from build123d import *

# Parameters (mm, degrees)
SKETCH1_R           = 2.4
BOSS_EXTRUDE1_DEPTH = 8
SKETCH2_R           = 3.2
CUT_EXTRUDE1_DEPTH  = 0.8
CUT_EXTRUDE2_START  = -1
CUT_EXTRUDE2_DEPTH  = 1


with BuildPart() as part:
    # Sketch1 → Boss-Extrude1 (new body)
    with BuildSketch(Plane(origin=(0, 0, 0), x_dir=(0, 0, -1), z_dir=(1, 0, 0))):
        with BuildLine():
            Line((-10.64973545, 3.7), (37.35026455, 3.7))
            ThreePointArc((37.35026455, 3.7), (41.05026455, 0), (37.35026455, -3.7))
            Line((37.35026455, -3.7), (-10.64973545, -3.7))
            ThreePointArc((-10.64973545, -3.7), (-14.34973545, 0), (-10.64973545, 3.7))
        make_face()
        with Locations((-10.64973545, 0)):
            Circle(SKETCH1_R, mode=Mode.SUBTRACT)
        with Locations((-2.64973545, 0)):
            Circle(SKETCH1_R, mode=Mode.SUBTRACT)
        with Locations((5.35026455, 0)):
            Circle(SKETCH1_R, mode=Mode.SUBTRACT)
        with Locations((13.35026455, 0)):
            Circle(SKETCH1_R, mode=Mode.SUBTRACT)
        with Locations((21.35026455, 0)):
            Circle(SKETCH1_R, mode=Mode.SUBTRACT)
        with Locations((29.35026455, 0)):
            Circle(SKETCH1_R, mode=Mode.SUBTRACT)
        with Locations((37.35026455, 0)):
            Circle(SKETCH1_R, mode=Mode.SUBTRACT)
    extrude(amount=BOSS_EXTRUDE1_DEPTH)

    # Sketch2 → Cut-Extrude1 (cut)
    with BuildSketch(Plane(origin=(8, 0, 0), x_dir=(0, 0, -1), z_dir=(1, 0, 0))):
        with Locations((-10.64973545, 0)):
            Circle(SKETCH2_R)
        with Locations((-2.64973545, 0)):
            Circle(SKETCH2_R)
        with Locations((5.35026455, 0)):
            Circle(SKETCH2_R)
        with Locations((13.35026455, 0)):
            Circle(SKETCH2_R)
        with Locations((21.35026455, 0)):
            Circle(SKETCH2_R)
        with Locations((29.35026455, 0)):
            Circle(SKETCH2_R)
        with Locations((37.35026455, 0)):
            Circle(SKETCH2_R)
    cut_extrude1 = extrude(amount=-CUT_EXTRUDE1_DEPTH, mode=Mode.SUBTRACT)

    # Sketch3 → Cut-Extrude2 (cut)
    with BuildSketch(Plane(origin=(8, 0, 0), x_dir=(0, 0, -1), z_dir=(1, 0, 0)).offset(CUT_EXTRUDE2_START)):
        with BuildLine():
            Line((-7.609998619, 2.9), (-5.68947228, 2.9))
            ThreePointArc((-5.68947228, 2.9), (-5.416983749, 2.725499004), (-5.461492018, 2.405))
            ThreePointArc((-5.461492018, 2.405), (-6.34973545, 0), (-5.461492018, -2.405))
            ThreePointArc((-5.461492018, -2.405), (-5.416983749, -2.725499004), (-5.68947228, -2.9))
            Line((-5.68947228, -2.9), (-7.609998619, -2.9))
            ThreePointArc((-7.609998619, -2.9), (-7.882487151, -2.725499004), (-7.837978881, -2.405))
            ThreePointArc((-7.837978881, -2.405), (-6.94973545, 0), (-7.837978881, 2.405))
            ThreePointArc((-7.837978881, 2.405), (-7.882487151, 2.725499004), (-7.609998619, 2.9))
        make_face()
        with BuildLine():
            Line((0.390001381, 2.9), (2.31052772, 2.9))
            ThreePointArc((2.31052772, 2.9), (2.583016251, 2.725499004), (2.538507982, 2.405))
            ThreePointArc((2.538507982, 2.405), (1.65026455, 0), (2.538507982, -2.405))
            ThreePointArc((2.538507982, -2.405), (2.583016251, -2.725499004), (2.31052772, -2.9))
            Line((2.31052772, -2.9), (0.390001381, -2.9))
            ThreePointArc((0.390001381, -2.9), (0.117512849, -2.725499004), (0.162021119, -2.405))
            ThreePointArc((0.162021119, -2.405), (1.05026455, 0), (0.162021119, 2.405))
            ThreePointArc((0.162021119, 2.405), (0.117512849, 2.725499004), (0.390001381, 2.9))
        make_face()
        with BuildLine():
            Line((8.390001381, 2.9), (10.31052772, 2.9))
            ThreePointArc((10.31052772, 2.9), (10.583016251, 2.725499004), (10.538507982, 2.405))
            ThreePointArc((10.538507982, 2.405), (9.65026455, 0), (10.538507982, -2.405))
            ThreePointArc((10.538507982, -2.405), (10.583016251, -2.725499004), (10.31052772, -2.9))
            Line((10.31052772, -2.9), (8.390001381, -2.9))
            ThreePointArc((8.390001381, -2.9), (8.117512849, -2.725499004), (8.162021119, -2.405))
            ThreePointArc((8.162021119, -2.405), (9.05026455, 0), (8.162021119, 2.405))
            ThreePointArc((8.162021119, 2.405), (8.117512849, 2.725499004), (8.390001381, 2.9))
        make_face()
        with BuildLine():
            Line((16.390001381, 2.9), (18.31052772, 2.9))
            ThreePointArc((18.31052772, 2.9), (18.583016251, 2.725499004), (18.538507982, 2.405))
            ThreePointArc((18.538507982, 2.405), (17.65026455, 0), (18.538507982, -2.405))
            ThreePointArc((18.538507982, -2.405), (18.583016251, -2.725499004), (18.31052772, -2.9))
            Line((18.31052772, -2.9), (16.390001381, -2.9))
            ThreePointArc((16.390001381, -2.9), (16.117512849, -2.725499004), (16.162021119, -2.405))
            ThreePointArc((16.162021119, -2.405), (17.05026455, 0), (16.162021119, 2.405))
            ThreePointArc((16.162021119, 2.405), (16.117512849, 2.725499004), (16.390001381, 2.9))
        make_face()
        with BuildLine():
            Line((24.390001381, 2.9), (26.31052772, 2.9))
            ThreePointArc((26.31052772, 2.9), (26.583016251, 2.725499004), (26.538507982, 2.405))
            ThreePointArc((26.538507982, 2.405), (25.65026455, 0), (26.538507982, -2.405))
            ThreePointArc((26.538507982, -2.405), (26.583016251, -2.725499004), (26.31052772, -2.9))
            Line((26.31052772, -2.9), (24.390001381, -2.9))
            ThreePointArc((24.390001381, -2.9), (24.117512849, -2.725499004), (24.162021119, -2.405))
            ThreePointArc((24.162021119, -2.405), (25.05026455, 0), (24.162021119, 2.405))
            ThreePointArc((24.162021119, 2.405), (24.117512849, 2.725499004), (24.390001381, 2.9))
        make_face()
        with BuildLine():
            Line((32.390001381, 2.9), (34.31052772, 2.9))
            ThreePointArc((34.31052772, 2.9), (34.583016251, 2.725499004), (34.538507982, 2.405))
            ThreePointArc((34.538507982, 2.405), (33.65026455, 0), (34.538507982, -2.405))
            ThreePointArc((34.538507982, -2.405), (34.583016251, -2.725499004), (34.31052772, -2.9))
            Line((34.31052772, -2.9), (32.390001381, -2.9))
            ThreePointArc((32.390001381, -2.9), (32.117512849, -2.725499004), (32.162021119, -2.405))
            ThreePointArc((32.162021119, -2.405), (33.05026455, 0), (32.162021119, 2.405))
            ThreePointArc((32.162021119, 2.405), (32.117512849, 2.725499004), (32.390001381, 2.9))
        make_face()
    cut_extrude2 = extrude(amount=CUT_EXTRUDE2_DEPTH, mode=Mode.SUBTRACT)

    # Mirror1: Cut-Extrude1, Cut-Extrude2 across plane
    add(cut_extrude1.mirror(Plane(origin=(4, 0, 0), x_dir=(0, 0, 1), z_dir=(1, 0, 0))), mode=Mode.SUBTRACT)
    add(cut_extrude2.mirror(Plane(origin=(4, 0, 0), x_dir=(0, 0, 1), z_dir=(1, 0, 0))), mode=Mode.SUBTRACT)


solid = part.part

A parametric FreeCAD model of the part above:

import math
import FreeCAD as App
import Part
import Sketcher
Q = App.Units.Quantity

doc = App.newDocument("Part")
body = doc.addObject("PartDesign::Body", "Body")

sketch1 = doc.addObject("Sketcher::SketchObject", "Sketch")
body.addObject(sketch1)
sketch1.AttachmentSupport = (doc.YZ_Plane, [""])
sketch1.MapMode = "FlatFace"
sketch1.addGeometry([
    Part.LineSegment(App.Vector(3.7, -37.4, 0), App.Vector(3.7, 10.6, 0)),
    Part.ArcOfCircle(Part.Circle(App.Vector(0, 10.6, 0), App.Vector(0, 0, 1), 3.7), math.radians(0), math.radians(180)),
    Part.LineSegment(App.Vector(-3.7, 10.6, 0), App.Vector(-3.7, -37.4, 0)),
    Part.ArcOfCircle(Part.Circle(App.Vector(0, -37.4, 0), App.Vector(0, 0, 1), 3.7), math.radians(180), math.radians(360)),
    Part.Circle(App.Vector(0, -37.4, 0), App.Vector(0, 0, 1), 2.4),
    Part.Circle(App.Vector(0, -29.4, 0), App.Vector(0, 0, 1), 2.4),
    Part.Circle(App.Vector(0, -21.4, 0), App.Vector(0, 0, 1), 2.4),
    Part.Circle(App.Vector(0, -13.4, 0), App.Vector(0, 0, 1), 2.4),
    Part.Circle(App.Vector(0, -5.4, 0), App.Vector(0, 0, 1), 2.4),
    Part.Circle(App.Vector(0, 2.6, 0), App.Vector(0, 0, 1), 2.4),
    Part.Circle(App.Vector(0, 10.6, 0), App.Vector(0, 0, 1), 2.4),
], False)
sketch1.addConstraint([
    Sketcher.Constraint("Tangent", 0, 2, 1, 1),
    Sketcher.Constraint("Tangent", 1, 2, 2, 1),
    Sketcher.Constraint("Tangent", 2, 2, 3, 1),
    Sketcher.Constraint("Tangent", 3, 2, 0, 1),
    Sketcher.Constraint("Vertical", 0),
    Sketcher.Constraint("Vertical", 2),
    Sketcher.Constraint("Coincident", 4, 3, 3, 3),
    Sketcher.Constraint("Coincident", 10, 3, 1, 3),
    Sketcher.Constraint("Equal", 4, 5),
    Sketcher.Constraint("Equal", 5, 6),
    Sketcher.Constraint("Equal", 6, 7),
    Sketcher.Constraint("Equal", 7, 8),
    Sketcher.Constraint("Equal", 8, 9),
    Sketcher.Constraint("Equal", 9, 10),
    Sketcher.Constraint("PointOnObject", 1, 3, -2),
    Sketcher.Constraint("PointOnObject", 5, 3, -2),
    Sketcher.Constraint("PointOnObject", 6, 3, -2),
    Sketcher.Constraint("PointOnObject", 7, 3, -2),
    Sketcher.Constraint("PointOnObject", 8, 3, -2),
    Sketcher.Constraint("PointOnObject", 9, 3, -2),
    Sketcher.Constraint("Diameter", 4, Q("4.8 mm")),
    Sketcher.Constraint("Radius", 1, Q("3.7 mm")),
    Sketcher.Constraint("DistanceY", 0, 1, 0, 2, Q("48 mm")),
    Sketcher.Constraint("DistanceY", 3, 3, 5, 3, Q("8 mm")),
    Sketcher.Constraint("DistanceY", 5, 3, 6, 3, Q("8 mm")),
    Sketcher.Constraint("DistanceY", 6, 3, 7, 3, Q("8 mm")),
    Sketcher.Constraint("DistanceY", 7, 3, 8, 3, Q("8 mm")),
    Sketcher.Constraint("DistanceY", 9, 3, 1, 3, Q("8 mm")),
    Sketcher.Constraint("DistanceY", -1, 1, 1, 3, Q("10.649735 mm")),
])
pad1 = doc.addObject("PartDesign::Pad", "Pad")
body.addObject(pad1)
pad1.Profile = sketch1
pad1.Length = 8

sketch2 = doc.addObject("Sketcher::SketchObject", "Sketch001")
body.addObject(sketch2)
sketch2.AttachmentSupport = (doc.YZ_Plane, [""])
sketch2.MapMode = "FlatFace"
sketch2.AttachmentOffset = App.Placement(App.Vector(0, 0, 8), App.Rotation())
sketch2.addGeometry([
    Part.Circle(App.Vector(0, 10.6, 0), App.Vector(0, 0, 1), 3.2),
    Part.Circle(App.Vector(0, 2.6, 0), App.Vector(0, 0, 1), 3.2),
    Part.Circle(App.Vector(0, -5.4, 0), App.Vector(0, 0, 1), 3.2),
    Part.Circle(App.Vector(0, -13.4, 0), App.Vector(0, 0, 1), 3.2),
    Part.Circle(App.Vector(0, -21.4, 0), App.Vector(0, 0, 1), 3.2),
    Part.Circle(App.Vector(0, -29.4, 0), App.Vector(0, 0, 1), 3.2),
    Part.Circle(App.Vector(0, -37.4, 0), App.Vector(0, 0, 1), 3.2),
], False)
sketch2.addConstraint([
    Sketcher.Constraint("Equal", 0, 1),
    Sketcher.Constraint("Equal", 1, 2),
    Sketcher.Constraint("Equal", 2, 3),
    Sketcher.Constraint("Equal", 3, 4),
    Sketcher.Constraint("Equal", 4, 5),
    Sketcher.Constraint("Equal", 5, 6),
    Sketcher.Constraint("PointOnObject", 0, 3, -2),
    Sketcher.Constraint("PointOnObject", 1, 3, -2),
    Sketcher.Constraint("PointOnObject", 2, 3, -2),
    Sketcher.Constraint("PointOnObject", 3, 3, -2),
    Sketcher.Constraint("PointOnObject", 4, 3, -2),
    Sketcher.Constraint("PointOnObject", 5, 3, -2),
    Sketcher.Constraint("PointOnObject", 6, 3, -2),
    Sketcher.Constraint("Diameter", 0, Q("6.4 mm")),
    Sketcher.Constraint("DistanceY", 1, 3, 0, 3, Q("8 mm")),
    Sketcher.Constraint("DistanceY", 2, 3, 1, 3, Q("8 mm")),
    Sketcher.Constraint("DistanceY", 3, 3, 2, 3, Q("8 mm")),
    Sketcher.Constraint("DistanceY", 4, 3, 3, 3, Q("8 mm")),
    Sketcher.Constraint("DistanceY", 5, 3, 4, 3, Q("8 mm")),
    Sketcher.Constraint("DistanceY", 6, 3, 5, 3, Q("8 mm")),
    Sketcher.Constraint("DistanceY", -1, 1, 0, 3, Q("10.649735 mm")),
])
pocket1 = doc.addObject("PartDesign::Pocket", "Pocket")
body.addObject(pocket1)
pocket1.Profile = sketch2
pocket1.Length = 0.8

sketch3 = doc.addObject("Sketcher::SketchObject", "Sketch002")
body.addObject(sketch3)
sketch3.AttachmentSupport = (doc.YZ_Plane, [""])
sketch3.MapMode = "FlatFace"
sketch3.AttachmentOffset = App.Placement(App.Vector(0, 0, 7), App.Rotation())
sketch3.addGeometry([
    Part.LineSegment(App.Vector(2.9, 5.69, 0), App.Vector(2.9, 7.61, 0)),
    Part.ArcOfCircle(Part.Circle(App.Vector(2.6, 7.61, 0), App.Vector(0, 0, 1), 0.3), math.radians(0), math.radians(131)),
    Part.ArcOfCircle(Part.Circle(App.Vector(0, 10.65, 0), App.Vector(0, 0, 1), 3.7), math.radians(-131), math.radians(-49)),
    Part.ArcOfCircle(Part.Circle(App.Vector(-2.6, 7.61, 0), App.Vector(0, 0, 1), 0.3), math.radians(49), math.radians(180)),
    Part.LineSegment(App.Vector(-2.9, 7.61, 0), App.Vector(-2.9, 5.69, 0)),
    Part.ArcOfCircle(Part.Circle(App.Vector(-2.6, 5.69, 0), App.Vector(0, 0, 1), 0.3), math.radians(-180), math.radians(-49)),
    Part.ArcOfCircle(Part.Circle(App.Vector(0, 2.65, 0), App.Vector(0, 0, 1), 3.7), math.radians(49), math.radians(131)),
    Part.ArcOfCircle(Part.Circle(App.Vector(2.6, 5.69, 0), App.Vector(0, 0, 1), 0.3), math.radians(-131), math.radians(0)),
    Part.LineSegment(App.Vector(2.9, -2.31, 0), App.Vector(2.9, -0.39, 0)),
    Part.ArcOfCircle(Part.Circle(App.Vector(2.6, -0.39, 0), App.Vector(0, 0, 1), 0.3), math.radians(0), math.radians(131)),
    Part.ArcOfCircle(Part.Circle(App.Vector(0, 2.65, 0), App.Vector(0, 0, 1), 3.7), math.radians(-131), math.radians(-49)),
    Part.ArcOfCircle(Part.Circle(App.Vector(-2.6, -0.39, 0), App.Vector(0, 0, 1), 0.3), math.radians(49), math.radians(180)),
    Part.LineSegment(App.Vector(-2.9, -0.39, 0), App.Vector(-2.9, -2.31, 0)),
    Part.ArcOfCircle(Part.Circle(App.Vector(-2.6, -2.31, 0), App.Vector(0, 0, 1), 0.3), math.radians(-180), math.radians(-49)),
    Part.ArcOfCircle(Part.Circle(App.Vector(0, -5.35, 0), App.Vector(0, 0, 1), 3.7), math.radians(49), math.radians(131)),
    Part.ArcOfCircle(Part.Circle(App.Vector(2.6, -2.31, 0), App.Vector(0, 0, 1), 0.3), math.radians(-131), math.radians(0)),
    Part.LineSegment(App.Vector(2.9, -10.31, 0), App.Vector(2.9, -8.39, 0)),
    Part.ArcOfCircle(Part.Circle(App.Vector(2.6, -8.39, 0), App.Vector(0, 0, 1), 0.3), math.radians(0), math.radians(131)),
    Part.ArcOfCircle(Part.Circle(App.Vector(0, -5.35, 0), App.Vector(0, 0, 1), 3.7), math.radians(-131), math.radians(-49)),
    Part.ArcOfCircle(Part.Circle(App.Vector(-2.6, -8.39, 0), App.Vector(0, 0, 1), 0.3), math.radians(49), math.radians(180)),
    Part.LineSegment(App.Vector(-2.9, -8.39, 0), App.Vector(-2.9, -10.31, 0)),
    Part.ArcOfCircle(Part.Circle(App.Vector(-2.6, -10.31, 0), App.Vector(0, 0, 1), 0.3), math.radians(-180), math.radians(-49)),
    Part.ArcOfCircle(Part.Circle(App.Vector(0, -13.35, 0), App.Vector(0, 0, 1), 3.7), math.radians(49), math.radians(131)),
    Part.ArcOfCircle(Part.Circle(App.Vector(2.6, -10.31, 0), App.Vector(0, 0, 1), 0.3), math.radians(-131), math.radians(0)),
    Part.LineSegment(App.Vector(2.9, -18.31, 0), App.Vector(2.9, -16.39, 0)),
    Part.ArcOfCircle(Part.Circle(App.Vector(2.6, -16.39, 0), App.Vector(0, 0, 1), 0.3), math.radians(0), math.radians(131)),
    Part.ArcOfCircle(Part.Circle(App.Vector(0, -13.35, 0), App.Vector(0, 0, 1), 3.7), math.radians(-131), math.radians(-49)),
    Part.ArcOfCircle(Part.Circle(App.Vector(-2.6, -16.39, 0), App.Vector(0, 0, 1), 0.3), math.radians(49), math.radians(180)),
    Part.LineSegment(App.Vector(-2.9, -16.39, 0), App.Vector(-2.9, -18.31, 0)),
    Part.ArcOfCircle(Part.Circle(App.Vector(-2.6, -18.31, 0), App.Vector(0, 0, 1), 0.3), math.radians(-180), math.radians(-49)),
    Part.ArcOfCircle(Part.Circle(App.Vector(0, -21.35, 0), App.Vector(0, 0, 1), 3.7), math.radians(49), math.radians(131)),
    Part.ArcOfCircle(Part.Circle(App.Vector(2.6, -18.31, 0), App.Vector(0, 0, 1), 0.3), math.radians(-131), math.radians(0)),
    Part.LineSegment(App.Vector(2.9, -26.31, 0), App.Vector(2.9, -24.39, 0)),
    Part.ArcOfCircle(Part.Circle(App.Vector(2.6, -24.39, 0), App.Vector(0, 0, 1), 0.3), math.radians(0), math.radians(131)),
    Part.ArcOfCircle(Part.Circle(App.Vector(0, -21.35, 0), App.Vector(0, 0, 1), 3.7), math.radians(-131), math.radians(-49)),
    Part.ArcOfCircle(Part.Circle(App.Vector(-2.6, -24.39, 0), App.Vector(0, 0, 1), 0.3), math.radians(49), math.radians(180)),
    Part.LineSegment(App.Vector(-2.9, -24.39, 0), App.Vector(-2.9, -26.31, 0)),
    Part.ArcOfCircle(Part.Circle(App.Vector(-2.6, -26.31, 0), App.Vector(0, 0, 1), 0.3), math.radians(-180), math.radians(-49)),
    Part.ArcOfCircle(Part.Circle(App.Vector(0, -29.35, 0), App.Vector(0, 0, 1), 3.7), math.radians(49), math.radians(131)),
    Part.ArcOfCircle(Part.Circle(App.Vector(2.6, -26.31, 0), App.Vector(0, 0, 1), 0.3), math.radians(-131), math.radians(0)),
    Part.LineSegment(App.Vector(2.9, -34.31, 0), App.Vector(2.9, -32.39, 0)),
    Part.ArcOfCircle(Part.Circle(App.Vector(2.6, -32.39, 0), App.Vector(0, 0, 1), 0.3), math.radians(0), math.radians(131)),
    Part.ArcOfCircle(Part.Circle(App.Vector(0, -29.35, 0), App.Vector(0, 0, 1), 3.7), math.radians(-131), math.radians(-49)),
    Part.ArcOfCircle(Part.Circle(App.Vector(-2.6, -32.39, 0), App.Vector(0, 0, 1), 0.3), math.radians(49), math.radians(180)),
    Part.LineSegment(App.Vector(-2.9, -32.39, 0), App.Vector(-2.9, -34.31, 0)),
    Part.ArcOfCircle(Part.Circle(App.Vector(-2.6, -34.31, 0), App.Vector(0, 0, 1), 0.3), math.radians(-180), math.radians(-49)),
    Part.ArcOfCircle(Part.Circle(App.Vector(0, -37.35, 0), App.Vector(0, 0, 1), 3.7), math.radians(49), math.radians(131)),
    Part.ArcOfCircle(Part.Circle(App.Vector(2.6, -34.31, 0), App.Vector(0, 0, 1), 0.3), math.radians(-131), math.radians(0)),
], False)
sketch3.addConstraint([
    Sketcher.Constraint("Tangent", 0, 2, 1, 1),
    Sketcher.Constraint("Tangent", 1, 2, 2, 2),
    Sketcher.Constraint("Tangent", 2, 1, 3, 1),
    Sketcher.Constraint("Tangent", 3, 2, 4, 1),
    Sketcher.Constraint("Tangent", 4, 2, 5, 1),
    Sketcher.Constraint("Tangent", 5, 2, 6, 2),
    Sketcher.Constraint("Tangent", 6, 1, 7, 1),
    Sketcher.Constraint("Tangent", 7, 2, 0, 1),
    Sketcher.Constraint("Tangent", 8, 2, 9, 1),
    Sketcher.Constraint("Tangent", 9, 2, 10, 2),
    Sketcher.Constraint("Tangent", 10, 1, 11, 1),
    Sketcher.Constraint("Tangent", 11, 2, 12, 1),
    Sketcher.Constraint("Tangent", 12, 2, 13, 1),
    Sketcher.Constraint("Tangent", 13, 2, 14, 2),
    Sketcher.Constraint("Tangent", 14, 1, 15, 1),
    Sketcher.Constraint("Tangent", 15, 2, 8, 1),
    Sketcher.Constraint("Tangent", 16, 2, 17, 1),
    Sketcher.Constraint("Tangent", 17, 2, 18, 2),
    Sketcher.Constraint("Tangent", 18, 1, 19, 1),
    Sketcher.Constraint("Tangent", 19, 2, 20, 1),
    Sketcher.Constraint("Tangent", 20, 2, 21, 1),
    Sketcher.Constraint("Tangent", 21, 2, 22, 2),
    Sketcher.Constraint("Tangent", 22, 1, 23, 1),
    Sketcher.Constraint("Tangent", 23, 2, 16, 1),
    Sketcher.Constraint("Tangent", 24, 2, 25, 1),
    Sketcher.Constraint("Tangent", 25, 2, 26, 2),
    Sketcher.Constraint("Tangent", 26, 1, 27, 1),
    Sketcher.Constraint("Tangent", 27, 2, 28, 1),
    Sketcher.Constraint("Tangent", 28, 2, 29, 1),
    Sketcher.Constraint("Tangent", 29, 2, 30, 2),
    Sketcher.Constraint("Tangent", 30, 1, 31, 1),
    Sketcher.Constraint("Tangent", 31, 2, 24, 1),
    Sketcher.Constraint("Tangent", 32, 2, 33, 1),
    Sketcher.Constraint("Tangent", 33, 2, 34, 2),
    Sketcher.Constraint("Tangent", 34, 1, 35, 1),
    Sketcher.Constraint("Tangent", 35, 2, 36, 1),
    Sketcher.Constraint("Tangent", 36, 2, 37, 1),
    Sketcher.Constraint("Tangent", 37, 2, 38, 2),
    Sketcher.Constraint("Tangent", 38, 1, 39, 1),
    Sketcher.Constraint("Tangent", 39, 2, 32, 1),
    Sketcher.Constraint("Tangent", 40, 2, 41, 1),
    Sketcher.Constraint("Tangent", 41, 2, 42, 2),
    Sketcher.Constraint("Tangent", 42, 1, 43, 1),
    Sketcher.Constraint("Tangent", 43, 2, 44, 1),
    Sketcher.Constraint("Tangent", 44, 2, 45, 1),
    Sketcher.Constraint("Tangent", 45, 2, 46, 2),
    Sketcher.Constraint("Tangent", 46, 1, 47, 1),
    Sketcher.Constraint("Tangent", 47, 2, 40, 1),
    Sketcher.Constraint("Vertical", 0),
    Sketcher.Constraint("Vertical", 4),
    Sketcher.Constraint("Vertical", 8),
    Sketcher.Constraint("Vertical", 12),
    Sketcher.Constraint("Vertical", 16),
    Sketcher.Constraint("Vertical", 20),
    Sketcher.Constraint("Vertical", 24),
    Sketcher.Constraint("Vertical", 28),
    Sketcher.Constraint("Vertical", 32),
    Sketcher.Constraint("Vertical", 36),
    Sketcher.Constraint("Vertical", 40),
    Sketcher.Constraint("Vertical", 44),
    Sketcher.Constraint("Coincident", 10, 3, 6, 3),
    Sketcher.Constraint("Coincident", 18, 3, 14, 3),
    Sketcher.Constraint("Coincident", 26, 3, 22, 3),
    Sketcher.Constraint("Coincident", 34, 3, 30, 3),
    Sketcher.Constraint("Coincident", 42, 3, 38, 3),
    Sketcher.Constraint("Equal", 1, 3),
    Sketcher.Constraint("Equal", 3, 5),
    Sketcher.Constraint("Equal", 2, 6),
    Sketcher.Constraint("Equal", 5, 7),
    Sketcher.Constraint("Equal", 7, 9),
    Sketcher.Constraint("Equal", 6, 10),
    Sketcher.Constraint("Equal", 9, 11),
    Sketcher.Constraint("Equal", 11, 13),
    Sketcher.Constraint("Equal", 10, 14),
    Sketcher.Constraint("Equal", 13, 15),
    Sketcher.Constraint("Equal", 15, 17),
    Sketcher.Constraint("Equal", 14, 18),
    Sketcher.Constraint("Equal", 17, 19),
    Sketcher.Constraint("Equal", 19, 21),
    Sketcher.Constraint("Equal", 18, 22),
    Sketcher.Constraint("Equal", 21, 23),
    Sketcher.Constraint("Equal", 23, 25),
    Sketcher.Constraint("Equal", 22, 26),
    Sketcher.Constraint("Equal", 25, 27),
    Sketcher.Constraint("Equal", 27, 29),
    Sketcher.Constraint("Equal", 26, 30),
    Sketcher.Constraint("Equal", 29, 31),
    Sketcher.Constraint("Equal", 31, 33),
    Sketcher.Constraint("Equal", 30, 34),
    Sketcher.Constraint("Equal", 33, 35),
    Sketcher.Constraint("Equal", 35, 37),
    Sketcher.Constraint("Equal", 34, 38),
    Sketcher.Constraint("Equal", 37, 39),
    Sketcher.Constraint("Equal", 39, 41),
    Sketcher.Constraint("Equal", 38, 42),
    Sketcher.Constraint("Equal", 41, 43),
    Sketcher.Constraint("Equal", 43, 45),
    Sketcher.Constraint("Equal", 42, 46),
    Sketcher.Constraint("Equal", 45, 47),
    Sketcher.Constraint("Symmetric", 1, 3, 3, 3, -2),
    Sketcher.Constraint("Symmetric", 9, 3, 11, 3, -2),
    Sketcher.Constraint("Symmetric", 17, 3, 19, 3, -2),
    Sketcher.Constraint("Symmetric", 25, 3, 27, 3, -2),
    Sketcher.Constraint("Symmetric", 33, 3, 35, 3, -2),
    Sketcher.Constraint("Symmetric", 41, 3, 43, 3, -2),
    Sketcher.Constraint("PointOnObject", 46, 3, -2),
    Sketcher.Constraint("Vertical", 7, 3, 9, 3),
    Sketcher.Constraint("Vertical", 15, 3, 17, 3),
    Sketcher.Constraint("Vertical", 23, 3, 25, 3),
    Sketcher.Constraint("Vertical", 31, 3, 33, 3),
    Sketcher.Constraint("Vertical", 39, 3, 41, 3),
    Sketcher.Constraint("Equal", 4, 8),
    Sketcher.Constraint("Equal", 12, 16),
    Sketcher.Constraint("Equal", 20, 24),
    Sketcher.Constraint("Equal", 28, 32),
    Sketcher.Constraint("Equal", 36, 40),
    Sketcher.Constraint("Radius", 1, Q("0.3 mm")),
    Sketcher.Constraint("Radius", 2, Q("3.7 mm")),
    Sketcher.Constraint("DistanceX", -1, 1, 1, 3, Q("2.6 mm")),
    Sketcher.Constraint("DistanceY", -1, 1, 1, 3, Q("7.609999 mm")),
    Sketcher.Constraint("DistanceY", 9, 3, -1, 1, Q("0.390001 mm")),
])
pocket2 = doc.addObject("PartDesign::Pocket", "Pocket001")
body.addObject(pocket2)
pocket2.Profile = sketch3
pocket2.Length = 1
pocket2.Reversed = True
doc.recompute()

datumplane = doc.addObject("PartDesign::Plane", "DatumPlane")
body.addObject(datumplane)
datumplane.AttachmentSupport = (doc.YZ_Plane, [""])
datumplane.MapMode = "FlatFace"
datumplane.AttachmentOffset = App.Placement(App.Vector(0, 0, 4), App.Rotation())
mirrored = doc.addObject("PartDesign::Mirrored", "Mirrored")
body.addObject(mirrored)
mirrored.Originals = [pocket1, pocket2]
mirrored.MirrorPlane = (datumplane, [""])
body.Tip = mirrored

doc.recompute()
